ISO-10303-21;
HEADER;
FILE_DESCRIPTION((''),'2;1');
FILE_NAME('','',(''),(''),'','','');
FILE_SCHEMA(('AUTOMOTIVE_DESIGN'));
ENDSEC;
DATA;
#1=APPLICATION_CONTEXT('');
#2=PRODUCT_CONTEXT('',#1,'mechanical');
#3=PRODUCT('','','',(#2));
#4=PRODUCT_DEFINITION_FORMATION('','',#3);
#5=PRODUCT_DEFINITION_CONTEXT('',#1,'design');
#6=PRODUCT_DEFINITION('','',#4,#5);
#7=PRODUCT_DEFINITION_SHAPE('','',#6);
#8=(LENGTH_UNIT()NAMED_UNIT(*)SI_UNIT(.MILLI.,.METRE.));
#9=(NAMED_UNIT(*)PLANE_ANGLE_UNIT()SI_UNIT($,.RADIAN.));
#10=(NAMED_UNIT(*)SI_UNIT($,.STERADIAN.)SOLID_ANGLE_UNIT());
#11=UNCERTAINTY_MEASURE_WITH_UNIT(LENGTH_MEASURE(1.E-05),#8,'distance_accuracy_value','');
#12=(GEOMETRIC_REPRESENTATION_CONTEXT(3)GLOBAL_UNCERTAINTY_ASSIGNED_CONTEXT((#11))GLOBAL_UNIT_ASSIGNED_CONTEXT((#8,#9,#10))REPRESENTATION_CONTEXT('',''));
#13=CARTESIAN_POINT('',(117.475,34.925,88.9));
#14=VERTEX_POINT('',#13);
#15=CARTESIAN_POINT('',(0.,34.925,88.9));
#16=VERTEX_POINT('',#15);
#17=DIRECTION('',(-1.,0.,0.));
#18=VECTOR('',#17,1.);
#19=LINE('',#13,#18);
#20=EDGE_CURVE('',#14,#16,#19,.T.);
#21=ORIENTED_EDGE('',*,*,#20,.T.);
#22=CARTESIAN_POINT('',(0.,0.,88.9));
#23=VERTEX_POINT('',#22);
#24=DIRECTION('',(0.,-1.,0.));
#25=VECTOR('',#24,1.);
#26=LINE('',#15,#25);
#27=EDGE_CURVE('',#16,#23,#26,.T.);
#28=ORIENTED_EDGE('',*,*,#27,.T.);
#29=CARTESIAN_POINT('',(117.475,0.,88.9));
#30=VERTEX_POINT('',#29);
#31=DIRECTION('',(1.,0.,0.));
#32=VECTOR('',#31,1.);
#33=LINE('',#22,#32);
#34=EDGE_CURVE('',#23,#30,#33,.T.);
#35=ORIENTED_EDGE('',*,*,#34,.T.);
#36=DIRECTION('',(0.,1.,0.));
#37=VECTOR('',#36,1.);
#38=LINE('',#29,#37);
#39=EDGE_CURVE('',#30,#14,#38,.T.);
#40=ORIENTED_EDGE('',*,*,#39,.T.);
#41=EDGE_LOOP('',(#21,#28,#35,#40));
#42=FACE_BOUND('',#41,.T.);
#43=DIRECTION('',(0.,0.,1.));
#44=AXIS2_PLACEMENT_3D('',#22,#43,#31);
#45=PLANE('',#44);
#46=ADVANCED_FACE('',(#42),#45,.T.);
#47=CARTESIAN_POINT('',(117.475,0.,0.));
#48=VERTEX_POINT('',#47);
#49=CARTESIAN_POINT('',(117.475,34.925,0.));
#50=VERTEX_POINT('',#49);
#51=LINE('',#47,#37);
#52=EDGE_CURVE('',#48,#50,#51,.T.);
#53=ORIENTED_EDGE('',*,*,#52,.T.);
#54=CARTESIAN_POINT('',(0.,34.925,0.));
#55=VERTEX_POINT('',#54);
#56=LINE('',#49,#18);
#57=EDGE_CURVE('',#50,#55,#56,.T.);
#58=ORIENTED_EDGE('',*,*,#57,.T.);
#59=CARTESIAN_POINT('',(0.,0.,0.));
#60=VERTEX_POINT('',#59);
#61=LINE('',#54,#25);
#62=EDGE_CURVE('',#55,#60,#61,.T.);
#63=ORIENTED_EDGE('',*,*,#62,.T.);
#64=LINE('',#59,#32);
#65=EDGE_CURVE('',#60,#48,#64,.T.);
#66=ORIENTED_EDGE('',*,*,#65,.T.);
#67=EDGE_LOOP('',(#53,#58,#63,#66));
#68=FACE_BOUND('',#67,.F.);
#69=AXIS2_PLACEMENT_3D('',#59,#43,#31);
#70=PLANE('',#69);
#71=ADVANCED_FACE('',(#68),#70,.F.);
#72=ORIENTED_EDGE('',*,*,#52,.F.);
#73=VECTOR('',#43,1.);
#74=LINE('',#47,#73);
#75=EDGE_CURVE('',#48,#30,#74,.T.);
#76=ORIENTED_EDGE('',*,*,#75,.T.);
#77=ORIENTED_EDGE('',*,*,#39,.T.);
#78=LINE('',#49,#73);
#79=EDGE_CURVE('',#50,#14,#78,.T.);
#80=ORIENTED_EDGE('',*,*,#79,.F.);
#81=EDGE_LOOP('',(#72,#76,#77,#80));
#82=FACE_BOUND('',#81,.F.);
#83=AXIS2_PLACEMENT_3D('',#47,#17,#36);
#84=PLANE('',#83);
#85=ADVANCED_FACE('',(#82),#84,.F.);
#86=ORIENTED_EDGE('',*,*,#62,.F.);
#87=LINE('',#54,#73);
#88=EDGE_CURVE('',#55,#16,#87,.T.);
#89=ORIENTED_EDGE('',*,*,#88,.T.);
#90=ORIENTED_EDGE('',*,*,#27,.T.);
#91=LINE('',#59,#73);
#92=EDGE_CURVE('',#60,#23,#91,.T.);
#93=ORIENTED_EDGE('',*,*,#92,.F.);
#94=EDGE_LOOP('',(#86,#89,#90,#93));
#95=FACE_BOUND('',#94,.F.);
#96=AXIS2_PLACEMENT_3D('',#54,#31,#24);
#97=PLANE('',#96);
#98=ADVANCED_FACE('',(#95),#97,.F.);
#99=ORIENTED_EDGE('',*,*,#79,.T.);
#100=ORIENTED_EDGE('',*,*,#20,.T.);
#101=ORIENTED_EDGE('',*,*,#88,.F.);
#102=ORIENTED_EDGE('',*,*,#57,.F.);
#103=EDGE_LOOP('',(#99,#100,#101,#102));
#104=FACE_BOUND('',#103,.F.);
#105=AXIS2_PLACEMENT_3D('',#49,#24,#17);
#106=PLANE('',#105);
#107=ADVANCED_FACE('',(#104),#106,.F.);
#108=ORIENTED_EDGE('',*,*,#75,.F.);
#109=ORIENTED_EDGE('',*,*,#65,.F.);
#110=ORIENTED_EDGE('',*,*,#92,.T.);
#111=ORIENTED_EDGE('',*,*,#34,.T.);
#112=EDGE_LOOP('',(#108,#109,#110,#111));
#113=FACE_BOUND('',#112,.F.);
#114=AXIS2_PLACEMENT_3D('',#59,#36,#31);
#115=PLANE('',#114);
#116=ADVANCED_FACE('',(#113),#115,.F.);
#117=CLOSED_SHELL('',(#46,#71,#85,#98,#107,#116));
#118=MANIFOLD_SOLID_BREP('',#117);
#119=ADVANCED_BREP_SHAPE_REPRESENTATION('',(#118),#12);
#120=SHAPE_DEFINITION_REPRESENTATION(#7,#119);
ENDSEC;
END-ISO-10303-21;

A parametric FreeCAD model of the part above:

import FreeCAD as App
import Part
import Sketcher
from FreeCAD import Vector
Q = App.Units.Quantity


def add_polygon(sketch, points):
    """Adds a closed chain of lines whose ends are joined by coincident constraints."""
    first, n = sketch.GeometryCount, len(points)
    for a, b in zip(points, points[1:] + points[:1]):
        sketch.addGeometry(Part.LineSegment(App.Vector(*a, 0), App.Vector(*b, 0)), False)
    for i in range(n):
        sketch.addConstraint(Sketcher.Constraint("Coincident", first + i, 2, first + (i + 1) % n, 1))

doc = App.newDocument("Part")
body = doc.addObject("PartDesign::Body", "Body")

# Sketch on XY plane
sketch1 = body.newObject("Sketcher::SketchObject", "Sketch")
sketch1.AttachmentSupport = (doc.getObject("XY_Plane"), [""])
sketch1.MapMode = "FlatFace"
add_polygon(sketch1, [(0, 35), (0, 0), (117, 0), (117, 35)])  # lines 0-3
sketch1.addConstraint([
    Sketcher.Constraint("Vertical", 0),
    Sketcher.Constraint("Horizontal", 1),
    Sketcher.Constraint("Vertical", 2),
    Sketcher.Constraint("Horizontal", 3),
    Sketcher.Constraint("Coincident", 0, 2, -1, 1),
    Sketcher.Constraint("DistanceX", 1, 1, 1, 2, Q("4.625 in")),
    Sketcher.Constraint("DistanceY", 0, 2, 0, 1, Q("1.375 in")),
])
pad1 = body.newObject("PartDesign::Pad", "Pad")
pad1.Profile = sketch1
pad1.Length = Q("3.5 in")

doc.recompute()
